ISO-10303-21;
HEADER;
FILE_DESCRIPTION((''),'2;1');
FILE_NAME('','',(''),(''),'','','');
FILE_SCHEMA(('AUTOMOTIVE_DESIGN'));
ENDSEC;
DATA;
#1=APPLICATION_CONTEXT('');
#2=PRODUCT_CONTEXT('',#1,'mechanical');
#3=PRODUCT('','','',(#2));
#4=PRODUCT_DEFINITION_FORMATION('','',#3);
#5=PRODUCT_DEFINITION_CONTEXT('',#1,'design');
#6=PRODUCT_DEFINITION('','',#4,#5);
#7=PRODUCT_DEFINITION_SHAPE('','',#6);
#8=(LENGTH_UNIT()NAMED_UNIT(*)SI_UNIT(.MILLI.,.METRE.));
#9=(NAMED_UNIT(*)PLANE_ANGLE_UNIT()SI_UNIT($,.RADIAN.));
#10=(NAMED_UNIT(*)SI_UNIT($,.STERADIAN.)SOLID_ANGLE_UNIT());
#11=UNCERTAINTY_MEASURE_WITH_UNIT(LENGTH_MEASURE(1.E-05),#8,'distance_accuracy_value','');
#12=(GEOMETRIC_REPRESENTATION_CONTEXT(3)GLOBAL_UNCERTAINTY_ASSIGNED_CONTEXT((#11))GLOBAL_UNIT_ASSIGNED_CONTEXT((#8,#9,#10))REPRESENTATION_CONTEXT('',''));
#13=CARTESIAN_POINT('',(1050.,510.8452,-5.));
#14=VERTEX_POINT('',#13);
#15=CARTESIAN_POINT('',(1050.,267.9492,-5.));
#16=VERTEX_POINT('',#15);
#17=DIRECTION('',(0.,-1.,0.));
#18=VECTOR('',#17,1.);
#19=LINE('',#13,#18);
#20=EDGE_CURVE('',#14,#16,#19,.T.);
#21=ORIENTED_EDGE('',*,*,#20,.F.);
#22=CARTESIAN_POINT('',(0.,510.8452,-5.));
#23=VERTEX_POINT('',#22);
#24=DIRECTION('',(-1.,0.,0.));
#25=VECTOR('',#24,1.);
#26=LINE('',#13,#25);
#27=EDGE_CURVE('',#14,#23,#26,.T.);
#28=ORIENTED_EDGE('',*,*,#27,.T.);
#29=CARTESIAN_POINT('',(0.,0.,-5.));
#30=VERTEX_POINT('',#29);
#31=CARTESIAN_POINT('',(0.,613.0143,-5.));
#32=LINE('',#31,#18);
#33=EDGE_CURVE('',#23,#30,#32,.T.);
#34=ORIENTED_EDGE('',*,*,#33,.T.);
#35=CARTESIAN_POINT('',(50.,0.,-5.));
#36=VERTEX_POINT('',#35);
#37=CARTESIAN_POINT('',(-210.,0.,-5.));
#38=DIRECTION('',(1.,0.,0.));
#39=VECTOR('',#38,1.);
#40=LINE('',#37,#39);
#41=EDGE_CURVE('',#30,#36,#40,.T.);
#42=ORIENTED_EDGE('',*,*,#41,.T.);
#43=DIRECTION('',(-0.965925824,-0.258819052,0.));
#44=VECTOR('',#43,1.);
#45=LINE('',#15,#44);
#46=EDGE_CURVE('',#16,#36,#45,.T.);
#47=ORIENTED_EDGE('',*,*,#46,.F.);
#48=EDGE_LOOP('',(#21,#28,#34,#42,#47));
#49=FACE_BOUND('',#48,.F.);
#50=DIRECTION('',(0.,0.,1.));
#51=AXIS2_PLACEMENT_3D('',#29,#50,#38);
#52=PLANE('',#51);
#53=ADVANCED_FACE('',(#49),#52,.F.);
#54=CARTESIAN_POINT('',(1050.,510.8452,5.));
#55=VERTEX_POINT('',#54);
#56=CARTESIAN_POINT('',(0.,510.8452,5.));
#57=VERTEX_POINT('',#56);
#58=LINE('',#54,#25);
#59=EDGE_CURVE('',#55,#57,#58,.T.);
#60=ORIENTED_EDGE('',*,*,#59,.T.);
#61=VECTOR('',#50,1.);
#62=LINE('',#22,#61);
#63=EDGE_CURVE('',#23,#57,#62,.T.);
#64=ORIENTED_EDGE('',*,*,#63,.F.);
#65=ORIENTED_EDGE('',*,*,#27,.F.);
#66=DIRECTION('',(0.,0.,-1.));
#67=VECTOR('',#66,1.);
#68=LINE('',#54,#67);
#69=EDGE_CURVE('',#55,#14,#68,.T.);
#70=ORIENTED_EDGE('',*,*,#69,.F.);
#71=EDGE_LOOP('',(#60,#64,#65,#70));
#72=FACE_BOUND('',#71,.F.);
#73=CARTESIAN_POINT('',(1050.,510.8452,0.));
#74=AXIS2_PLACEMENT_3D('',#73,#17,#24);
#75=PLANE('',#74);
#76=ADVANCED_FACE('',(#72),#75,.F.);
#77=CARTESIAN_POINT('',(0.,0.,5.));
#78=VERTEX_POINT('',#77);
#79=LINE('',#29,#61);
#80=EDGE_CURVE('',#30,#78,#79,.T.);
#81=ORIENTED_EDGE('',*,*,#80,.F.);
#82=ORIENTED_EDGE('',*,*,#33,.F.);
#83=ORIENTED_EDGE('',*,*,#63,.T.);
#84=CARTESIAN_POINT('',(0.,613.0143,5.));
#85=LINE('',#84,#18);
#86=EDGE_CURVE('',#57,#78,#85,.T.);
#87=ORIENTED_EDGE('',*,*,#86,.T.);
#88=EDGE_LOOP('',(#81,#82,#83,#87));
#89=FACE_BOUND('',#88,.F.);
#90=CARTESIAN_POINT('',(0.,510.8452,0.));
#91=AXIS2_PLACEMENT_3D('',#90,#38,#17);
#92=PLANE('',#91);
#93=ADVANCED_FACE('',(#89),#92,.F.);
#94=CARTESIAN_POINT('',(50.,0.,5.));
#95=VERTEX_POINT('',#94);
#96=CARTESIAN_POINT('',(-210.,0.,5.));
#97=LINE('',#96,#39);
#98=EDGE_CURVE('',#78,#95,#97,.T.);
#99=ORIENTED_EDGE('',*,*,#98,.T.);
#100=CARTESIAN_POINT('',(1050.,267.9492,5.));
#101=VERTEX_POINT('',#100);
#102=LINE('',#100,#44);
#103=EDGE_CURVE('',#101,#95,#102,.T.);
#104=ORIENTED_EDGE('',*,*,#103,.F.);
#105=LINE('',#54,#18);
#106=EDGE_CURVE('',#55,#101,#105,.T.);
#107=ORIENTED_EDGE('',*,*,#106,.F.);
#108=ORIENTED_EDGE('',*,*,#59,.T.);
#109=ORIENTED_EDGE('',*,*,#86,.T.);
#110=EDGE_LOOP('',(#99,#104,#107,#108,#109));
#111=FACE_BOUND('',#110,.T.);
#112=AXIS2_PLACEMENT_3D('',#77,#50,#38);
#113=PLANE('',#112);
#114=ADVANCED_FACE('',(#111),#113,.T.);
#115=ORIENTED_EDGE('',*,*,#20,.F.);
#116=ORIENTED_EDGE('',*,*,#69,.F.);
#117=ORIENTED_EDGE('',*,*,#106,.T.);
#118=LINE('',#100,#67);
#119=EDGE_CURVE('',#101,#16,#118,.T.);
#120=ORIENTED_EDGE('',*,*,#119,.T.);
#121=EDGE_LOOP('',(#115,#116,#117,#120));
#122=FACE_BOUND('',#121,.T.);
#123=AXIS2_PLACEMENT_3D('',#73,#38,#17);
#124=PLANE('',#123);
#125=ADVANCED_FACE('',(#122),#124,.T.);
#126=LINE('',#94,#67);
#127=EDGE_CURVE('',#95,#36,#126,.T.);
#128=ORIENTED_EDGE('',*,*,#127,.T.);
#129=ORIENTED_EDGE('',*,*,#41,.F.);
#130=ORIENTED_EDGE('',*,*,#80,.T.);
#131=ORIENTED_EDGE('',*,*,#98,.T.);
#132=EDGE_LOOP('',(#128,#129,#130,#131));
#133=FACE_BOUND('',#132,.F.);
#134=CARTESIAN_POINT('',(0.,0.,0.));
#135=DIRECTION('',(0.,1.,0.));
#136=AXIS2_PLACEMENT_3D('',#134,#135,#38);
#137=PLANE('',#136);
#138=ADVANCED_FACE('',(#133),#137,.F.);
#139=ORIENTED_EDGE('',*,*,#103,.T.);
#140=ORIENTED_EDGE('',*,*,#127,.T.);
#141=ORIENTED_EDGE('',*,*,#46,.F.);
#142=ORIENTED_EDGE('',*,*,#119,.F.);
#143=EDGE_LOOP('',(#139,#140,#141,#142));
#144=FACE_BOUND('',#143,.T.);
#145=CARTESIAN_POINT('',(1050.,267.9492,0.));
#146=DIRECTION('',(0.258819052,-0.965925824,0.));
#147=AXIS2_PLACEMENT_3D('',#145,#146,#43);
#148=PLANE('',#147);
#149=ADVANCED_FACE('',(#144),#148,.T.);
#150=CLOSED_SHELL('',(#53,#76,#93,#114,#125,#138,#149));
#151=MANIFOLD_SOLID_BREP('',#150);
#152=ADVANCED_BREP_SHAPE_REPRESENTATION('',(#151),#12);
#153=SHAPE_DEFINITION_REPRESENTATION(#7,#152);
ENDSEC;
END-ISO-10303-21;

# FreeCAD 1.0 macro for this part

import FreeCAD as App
import Part
import Sketcher
from FreeCAD import Vector
Q = App.Units.Quantity


def add_polygon(sketch, points):
    """Adds a closed chain of lines whose ends are joined by coincident constraints."""
    first, n = sketch.GeometryCount, len(points)
    for a, b in zip(points, points[1:] + points[:1]):
        sketch.addGeometry(Part.LineSegment(App.Vector(*a, 0), App.Vector(*b, 0)), False)
    for i in range(n):
        sketch.addConstraint(Sketcher.Constraint("Coincident", first + i, 2, first + (i + 1) % n, 1))

doc = App.newDocument("Part")
params = doc.addObject("Spreadsheet::Sheet", "Params")
for row, (alias, value) in enumerate([
    ("sketch1_width", "1050 mm"),
    ("sketch1_width2", "50 mm"),
    ("pad1_length", "10 mm"),
], start=1):
    params.set(f"A{row}", alias)
    params.set(f"B{row}", "=" + value)
    params.setAlias(f"B{row}", alias)

body = doc.addObject("PartDesign::Body", "Body")

# Sketch on XY plane
sketch1 = doc.addObject("Sketcher::SketchObject", "Sketch")
body.addObject(sketch1)
sketch1.AttachmentSupport = (doc.XY_Plane, [""])
sketch1.MapMode = "FlatFace"
add_polygon(sketch1, [(1050, 511), (0, 511), (0, 0), (50, 0), (1050, 268)])  # lines 0-4
sketch1.addConstraint(Sketcher.Constraint("Horizontal", 0))
sketch1.addConstraint(Sketcher.Constraint("Vertical", 1))
sketch1.addConstraint(Sketcher.Constraint("Horizontal", 2))
sketch1.addConstraint(Sketcher.Constraint("Vertical", 4))
sketch1.addConstraint(Sketcher.Constraint("Coincident", 1, 2, -1, 1))
sketch1.addConstraint(Sketcher.Constraint("DistanceX", 0, 2, 0, 1, 1050.0))
sketch1.addConstraint(Sketcher.Constraint("DistanceX", 2, 1, 2, 2, 50.0))
sketch1.addConstraint(Sketcher.Constraint("Angle", 3, Q("15 deg")))
sketch1.addConstraint(Sketcher.Constraint("DistanceY", 4, 1, 4, 2, 242.896))
sketch1.setExpression("Constraints[10]", "Params.sketch1_width")
sketch1.setExpression("Constraints[11]", "Params.sketch1_width2")
pad1 = doc.addObject("PartDesign::Pad", "Pad")
body.addObject(pad1)
pad1.Profile = sketch1
pad1.setExpression("Length", "Params.pad1_length")
pad1.Midplane = True

doc.recompute()
